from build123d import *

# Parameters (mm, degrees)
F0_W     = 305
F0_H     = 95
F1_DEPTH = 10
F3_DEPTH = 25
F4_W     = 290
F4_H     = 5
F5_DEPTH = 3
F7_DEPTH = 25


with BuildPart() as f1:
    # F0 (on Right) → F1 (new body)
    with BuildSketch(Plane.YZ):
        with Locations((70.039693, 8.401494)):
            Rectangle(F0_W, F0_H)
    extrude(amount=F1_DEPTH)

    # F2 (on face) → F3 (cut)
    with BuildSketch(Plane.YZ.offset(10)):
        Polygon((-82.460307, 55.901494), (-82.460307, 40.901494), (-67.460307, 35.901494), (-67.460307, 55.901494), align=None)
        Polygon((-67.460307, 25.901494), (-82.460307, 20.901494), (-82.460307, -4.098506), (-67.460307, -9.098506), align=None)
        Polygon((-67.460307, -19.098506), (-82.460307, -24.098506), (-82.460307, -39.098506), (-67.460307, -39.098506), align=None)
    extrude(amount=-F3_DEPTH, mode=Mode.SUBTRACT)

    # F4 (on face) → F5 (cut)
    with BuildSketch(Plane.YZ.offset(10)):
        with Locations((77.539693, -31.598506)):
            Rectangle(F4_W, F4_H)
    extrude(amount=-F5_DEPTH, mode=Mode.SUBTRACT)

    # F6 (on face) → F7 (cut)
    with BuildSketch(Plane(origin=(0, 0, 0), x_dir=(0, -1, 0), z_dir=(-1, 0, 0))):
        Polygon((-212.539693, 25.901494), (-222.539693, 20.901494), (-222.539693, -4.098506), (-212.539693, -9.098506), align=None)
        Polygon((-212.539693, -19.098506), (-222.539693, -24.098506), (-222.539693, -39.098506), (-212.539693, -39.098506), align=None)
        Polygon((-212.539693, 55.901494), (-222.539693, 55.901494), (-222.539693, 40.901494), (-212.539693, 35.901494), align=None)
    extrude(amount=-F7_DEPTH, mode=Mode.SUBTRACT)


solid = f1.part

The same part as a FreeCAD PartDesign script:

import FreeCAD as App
import Part
import Sketcher

V = App.Vector
Q = App.Units.Quantity

doc = App.newDocument("Part")
body = doc.addObject("PartDesign::Body", "Body")

# Sketch on YZ plane
sketch1 = body.newObject("Sketcher::SketchObject", "Sketch")
sketch1.AttachmentSupport = (doc.getObject("YZ_Plane"), [""])
sketch1.MapMode = "FlatFace"
sketch1.addGeometry(Part.LineSegment(V(-82, 56, 0), V(-82, -39, 0)), False)
sketch1.addGeometry(Part.LineSegment(V(-82, -39, 0), V(223, -39, 0)), False)
sketch1.addGeometry(Part.LineSegment(V(223, -39, 0), V(223, 56, 0)), False)
sketch1.addGeometry(Part.LineSegment(V(223, 56, 0), V(-82, 56, 0)), False)
sketch1.addConstraint(Sketcher.Constraint("Coincident", 0, 2, 1, 1))
sketch1.addConstraint(Sketcher.Constraint("Coincident", 1, 2, 2, 1))
sketch1.addConstraint(Sketcher.Constraint("Coincident", 2, 2, 3, 1))
sketch1.addConstraint(Sketcher.Constraint("Coincident", 3, 2, 0, 1))
sketch1.addConstraint(Sketcher.Constraint("Vertical", 0))
sketch1.addConstraint(Sketcher.Constraint("Horizontal", 1))
sketch1.addConstraint(Sketcher.Constraint("Vertical", 2))
sketch1.addConstraint(Sketcher.Constraint("Horizontal", 3))
sketch1.addConstraint(Sketcher.Constraint("DistanceX", 1, 1, 1, 2, Q("305 mm")))
sketch1.addConstraint(Sketcher.Constraint("DistanceY", 0, 2, 0, 1, Q("95 mm")))
sketch1.addConstraint(Sketcher.Constraint("DistanceX", 0, 2, -1, 1, Q("82.460307 mm")))
sketch1.addConstraint(Sketcher.Constraint("DistanceY", 0, 2, -1, 1, Q("39.098506 mm")))
pad1 = body.newObject("PartDesign::Pad", "Pad")
pad1.Profile = sketch1
pad1.Length = 10

# Sketch on YZ plane
sketch2 = body.newObject("Sketcher::SketchObject", "Sketch001")
sketch2.AttachmentSupport = (doc.getObject("YZ_Plane"), [""])
sketch2.MapMode = "FlatFace"
sketch2.AttachmentOffset = App.Placement(V(0, 0, 10), App.Rotation())
sketch2.addGeometry(Part.LineSegment(V(-82, 56, 0), V(-82, 41, 0)), False)
sketch2.addGeometry(Part.LineSegment(V(-82, 41, 0), V(-67, 36, 0)), False)
sketch2.addGeometry(Part.LineSegment(V(-67, 36, 0), V(-67, 56, 0)), False)
sketch2.addGeometry(Part.LineSegment(V(-67, 56, 0), V(-82, 56, 0)), False)
sketch2.addGeometry(Part.LineSegment(V(-67, 26, 0), V(-82, 21, 0)), False)
sketch2.addGeometry(Part.LineSegment(V(-82, 21, 0), V(-82, -4, 0)), False)
sketch2.addGeometry(Part.LineSegment(V(-82, -4, 0), V(-67, -9, 0)), False)
sketch2.addGeometry(Part.LineSegment(V(-67, -9, 0), V(-67, 26, 0)), False)
sketch2.addGeometry(Part.LineSegment(V(-67, -19, 0), V(-82, -24, 0)), False)
sketch2.addGeometry(Part.LineSegment(V(-82, -24, 0), V(-82, -39, 0)), False)
sketch2.addGeometry(Part.LineSegment(V(-82, -39, 0), V(-67, -39, 0)), False)
sketch2.addGeometry(Part.LineSegment(V(-67, -39, 0), V(-67, -19, 0)), False)
sketch2.addConstraint(Sketcher.Constraint("Coincident", 0, 2, 1, 1))
sketch2.addConstraint(Sketcher.Constraint("Coincident", 1, 2, 2, 1))
sketch2.addConstraint(Sketcher.Constraint("Coincident", 2, 2, 3, 1))
sketch2.addConstraint(Sketcher.Constraint("Coincident", 3, 2, 0, 1))
sketch2.addConstraint(Sketcher.Constraint("Coincident", 4, 2, 5, 1))
sketch2.addConstraint(Sketcher.Constraint("Coincident", 5, 2, 6, 1))
sketch2.addConstraint(Sketcher.Constraint("Coincident", 6, 2, 7, 1))
sketch2.addConstraint(Sketcher.Constraint("Coincident", 7, 2, 4, 1))
sketch2.addConstraint(Sketcher.Constraint("Coincident", 8, 2, 9, 1))
sketch2.addConstraint(Sketcher.Constraint("Coincident", 9, 2, 10, 1))
sketch2.addConstraint(Sketcher.Constraint("Coincident", 10, 2, 11, 1))
sketch2.addConstraint(Sketcher.Constraint("Coincident", 11, 2, 8, 1))
sketch2.addConstraint(Sketcher.Constraint("Vertical", 0))
sketch2.addConstraint(Sketcher.Constraint("Vertical", 2))
sketch2.addConstraint(Sketcher.Constraint("Horizontal", 3))
sketch2.addConstraint(Sketcher.Constraint("Vertical", 5))
sketch2.addConstraint(Sketcher.Constraint("Vertical", 7))
sketch2.addConstraint(Sketcher.Constraint("Vertical", 9))
sketch2.addConstraint(Sketcher.Constraint("Horizontal", 10))
sketch2.addConstraint(Sketcher.Constraint("Vertical", 11))
sketch2.addConstraint(Sketcher.Constraint("Parallel", 1, 6))
sketch2.addConstraint(Sketcher.Constraint("Parallel", 4, 8))
sketch2.addConstraint(Sketcher.Constraint("Vertical", 3, 2, 4, 2))
sketch2.addConstraint(Sketcher.Constraint("Vertical", 2, 2, 6, 2))
sketch2.addConstraint(Sketcher.Constraint("Vertical", 5, 2, 8, 2))
sketch2.addConstraint(Sketcher.Constraint("Vertical", 7, 2, 10, 2))
sketch2.addConstraint(Sketcher.Constraint("Equal", 10, 0))
sketch2.addConstraint(Sketcher.Constraint("Equal", 0, 9))
sketch2.addConstraint(Sketcher.Constraint("Equal", 2, 11))
sketch2.addConstraint(Sketcher.Constraint("DistanceX", 3, 2, 3, 1, Q("15 mm")))
sketch2.addConstraint(Sketcher.Constraint("DistanceY", 2, 1, 2, 2, Q("20 mm")))
sketch2.addConstraint(Sketcher.Constraint("DistanceY", 5, 2, 5, 1, Q("25 mm")))
sketch2.addConstraint(Sketcher.Constraint("DistanceY", 4, 2, 0, 2, Q("20 mm")))
sketch2.addConstraint(Sketcher.Constraint("DistanceY", 8, 2, 5, 2, Q("20 mm")))
sketch2.addConstraint(Sketcher.Constraint("DistanceX", 0, 2, -1, 1, Q("82.460307 mm")))
sketch2.addConstraint(Sketcher.Constraint("DistanceY", -1, 1, 0, 2, Q("40.901494 mm")))
pocket1 = body.newObject("PartDesign::Pocket", "Pocket")
pocket1.Profile = sketch2
pocket1.Length = 25

# Sketch on YZ plane
sketch3 = body.newObject("Sketcher::SketchObject", "Sketch002")
sketch3.AttachmentSupport = (doc.getObject("YZ_Plane"), [""])
sketch3.MapMode = "FlatFace"
sketch3.AttachmentOffset = App.Placement(V(0, 0, 10), App.Rotation())
sketch3.addGeometry(Part.LineSegment(V(-67, -29, 0), V(-67, -34, 0)), False)
sketch3.addGeometry(Part.LineSegment(V(-67, -34, 0), V(223, -34, 0)), False)
sketch3.addGeometry(Part.LineSegment(V(223, -34, 0), V(223, -29, 0)), False)
sketch3.addGeometry(Part.LineSegment(V(223, -29, 0), V(-67, -29, 0)), False)
sketch3.addConstraint(Sketcher.Constraint("Coincident", 0, 2, 1, 1))
sketch3.addConstraint(Sketcher.Constraint("Coincident", 1, 2, 2, 1))
sketch3.addConstraint(Sketcher.Constraint("Coincident", 2, 2, 3, 1))
sketch3.addConstraint(Sketcher.Constraint("Coincident", 3, 2, 0, 1))
sketch3.addConstraint(Sketcher.Constraint("Vertical", 0))
sketch3.addConstraint(Sketcher.Constraint("Horizontal", 1))
sketch3.addConstraint(Sketcher.Constraint("Vertical", 2))
sketch3.addConstraint(Sketcher.Constraint("Horizontal", 3))
sketch3.addConstraint(Sketcher.Constraint("DistanceX", 1, 1, 1, 2, Q("290 mm")))
sketch3.addConstraint(Sketcher.Constraint("DistanceY", 0, 2, 0, 1, Q("5 mm")))
sketch3.addConstraint(Sketcher.Constraint("DistanceX", 0, 2, -1, 1, Q("67.460307 mm")))
sketch3.addConstraint(Sketcher.Constraint("DistanceY", 0, 2, -1, 1, Q("34.098506 mm")))
pocket2 = body.newObject("PartDesign::Pocket", "Pocket001")
pocket2.Profile = sketch3
pocket2.Length = 3

# Sketch on YZ plane
sketch4 = body.newObject("Sketcher::SketchObject", "Sketch003")
sketch4.AttachmentSupport = (doc.getObject("YZ_Plane"), [""])
sketch4.MapMode = "FlatFace"
sketch4.addGeometry(Part.LineSegment(V(213, 26, 0), V(223, 21, 0)), False)
sketch4.addGeometry(Part.LineSegment(V(223, 21, 0), V(223, -4, 0)), False)
sketch4.addGeometry(Part.LineSegment(V(223, -4, 0), V(213, -9, 0)), False)
sketch4.addGeometry(Part.LineSegment(V(213, -9, 0), V(213, 26, 0)), False)
sketch4.addGeometry(Part.LineSegment(V(213, -19, 0), V(223, -24, 0)), False)
sketch4.addGeometry(Part.LineSegment(V(223, -24, 0), V(223, -39, 0)), False)
sketch4.addGeometry(Part.LineSegment(V(223, -39, 0), V(213, -39, 0)), False)
sketch4.addGeometry(Part.LineSegment(V(213, -39, 0), V(213, -19, 0)), False)
sketch4.addGeometry(Part.LineSegment(V(213, 56, 0), V(223, 56, 0)), False)
sketch4.addGeometry(Part.LineSegment(V(223, 56, 0), V(223, 41, 0)), False)
sketch4.addGeometry(Part.LineSegment(V(223, 41, 0), V(213, 36, 0)), False)
sketch4.addGeometry(Part.LineSegment(V(213, 36, 0), V(213, 56, 0)), False)
sketch4.addConstraint(Sketcher.Constraint("Coincident", 0, 2, 1, 1))
sketch4.addConstraint(Sketcher.Constraint("Coincident", 1, 2, 2, 1))
sketch4.addConstraint(Sketcher.Constraint("Coincident", 2, 2, 3, 1))
sketch4.addConstraint(Sketcher.Constraint("Coincident", 3, 2, 0, 1))
sketch4.addConstraint(Sketcher.Constraint("Coincident", 4, 2, 5, 1))
sketch4.addConstraint(Sketcher.Constraint("Coincident", 5, 2, 6, 1))
sketch4.addConstraint(Sketcher.Constraint("Coincident", 6, 2, 7, 1))
sketch4.addConstraint(Sketcher.Constraint("Coincident", 7, 2, 4, 1))
sketch4.addConstraint(Sketcher.Constraint("Coincident", 8, 2, 9, 1))
sketch4.addConstraint(Sketcher.Constraint("Coincident", 9, 2, 10, 1))
sketch4.addConstraint(Sketcher.Constraint("Coincident", 10, 2, 11, 1))
sketch4.addConstraint(Sketcher.Constraint("Coincident", 11, 2, 8, 1))
sketch4.addConstraint(Sketcher.Constraint("Vertical", 1))
sketch4.addConstraint(Sketcher.Constraint("Vertical", 3))
sketch4.addConstraint(Sketcher.Constraint("Vertical", 5))
sketch4.addConstraint(Sketcher.Constraint("Horizontal", 6))
sketch4.addConstraint(Sketcher.Constraint("Vertical", 7))
sketch4.addConstraint(Sketcher.Constraint("Horizontal", 8))
sketch4.addConstraint(Sketcher.Constraint("Vertical", 9))
sketch4.addConstraint(Sketcher.Constraint("Vertical", 11))
sketch4.addConstraint(Sketcher.Constraint("Parallel", 0, 4))
sketch4.addConstraint(Sketcher.Constraint("Parallel", 2, 10))
sketch4.addConstraint(Sketcher.Constraint("Vertical", 1, 2, 4, 2))
sketch4.addConstraint(Sketcher.Constraint("Vertical", 3, 2, 6, 2))
sketch4.addConstraint(Sketcher.Constraint("Vertical", 5, 2, 8, 2))
sketch4.addConstraint(Sketcher.Constraint("Vertical", 7, 2, 10, 2))
sketch4.addConstraint(Sketcher.Constraint("Equal", 5, 9))
sketch4.addConstraint(Sketcher.Constraint("Equal", 7, 11))
sketch4.addConstraint(Sketcher.Constraint("DistanceX", 6, 2, 6, 1, Q("10 mm")))
sketch4.addConstraint(Sketcher.Constraint("DistanceY", 1, 2, 1, 1, Q("25 mm")))
sketch4.addConstraint(Sketcher.Constraint("DistanceY", 3, 1, 3, 2, Q("35 mm")))
sketch4.addConstraint(Sketcher.Constraint("DistanceY", 5, 2, 5, 1, Q("15 mm")))
sketch4.addConstraint(Sketcher.Constraint("DistanceY", 4, 2, 2, 2, Q("15 mm")))
sketch4.addConstraint(Sketcher.Constraint("DistanceY", 3, 2, 8, 2, Q("30 mm")))
sketch4.addConstraint(Sketcher.Constraint("DistanceX", -1, 1, 0, 2, Q("222.539693 mm")))
sketch4.addConstraint(Sketcher.Constraint("DistanceY", -1, 1, 0, 2, Q("20.901494 mm")))
pocket3 = body.newObject("PartDesign::Pocket", "Pocket002")
pocket3.Profile = sketch4
pocket3.Length = 25
pocket3.Reversed = True

doc.recompute()
